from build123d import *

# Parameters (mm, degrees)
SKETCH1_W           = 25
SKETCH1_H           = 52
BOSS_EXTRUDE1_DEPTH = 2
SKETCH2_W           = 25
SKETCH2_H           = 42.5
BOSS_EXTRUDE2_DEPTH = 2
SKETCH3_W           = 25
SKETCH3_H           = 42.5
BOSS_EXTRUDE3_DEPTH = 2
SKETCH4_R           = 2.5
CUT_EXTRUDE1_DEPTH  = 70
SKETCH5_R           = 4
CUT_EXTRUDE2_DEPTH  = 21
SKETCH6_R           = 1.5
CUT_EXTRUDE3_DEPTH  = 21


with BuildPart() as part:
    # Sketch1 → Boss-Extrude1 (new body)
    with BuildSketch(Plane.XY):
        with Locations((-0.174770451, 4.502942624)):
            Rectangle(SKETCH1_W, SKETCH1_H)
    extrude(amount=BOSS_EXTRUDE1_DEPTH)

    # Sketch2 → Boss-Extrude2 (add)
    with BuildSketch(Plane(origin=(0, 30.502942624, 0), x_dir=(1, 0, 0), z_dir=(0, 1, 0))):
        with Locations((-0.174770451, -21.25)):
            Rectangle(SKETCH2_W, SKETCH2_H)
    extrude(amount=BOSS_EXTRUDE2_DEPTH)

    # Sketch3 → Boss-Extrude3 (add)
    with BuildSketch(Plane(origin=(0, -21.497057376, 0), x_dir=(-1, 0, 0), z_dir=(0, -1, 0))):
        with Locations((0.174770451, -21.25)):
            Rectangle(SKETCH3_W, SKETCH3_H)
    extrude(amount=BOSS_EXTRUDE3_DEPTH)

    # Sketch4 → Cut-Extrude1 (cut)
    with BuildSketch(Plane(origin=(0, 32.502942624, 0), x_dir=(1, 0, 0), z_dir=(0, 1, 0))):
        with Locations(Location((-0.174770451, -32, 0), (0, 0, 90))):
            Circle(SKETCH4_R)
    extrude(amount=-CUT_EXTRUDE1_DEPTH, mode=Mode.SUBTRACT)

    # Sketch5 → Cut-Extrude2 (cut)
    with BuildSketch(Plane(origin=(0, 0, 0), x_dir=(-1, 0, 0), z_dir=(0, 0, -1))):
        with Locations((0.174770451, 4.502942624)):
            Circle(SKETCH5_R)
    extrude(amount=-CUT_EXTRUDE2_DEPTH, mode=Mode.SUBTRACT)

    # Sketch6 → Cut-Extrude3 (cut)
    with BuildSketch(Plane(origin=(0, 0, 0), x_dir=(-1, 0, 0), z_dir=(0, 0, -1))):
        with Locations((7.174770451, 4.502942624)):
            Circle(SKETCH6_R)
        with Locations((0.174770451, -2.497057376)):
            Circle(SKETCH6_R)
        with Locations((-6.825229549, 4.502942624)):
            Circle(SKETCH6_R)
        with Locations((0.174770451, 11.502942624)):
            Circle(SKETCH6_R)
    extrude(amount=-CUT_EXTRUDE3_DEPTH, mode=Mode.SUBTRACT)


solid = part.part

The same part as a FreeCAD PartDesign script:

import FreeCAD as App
import Part
import Sketcher
from FreeCAD import Vector
Q = App.Units.Quantity

doc = App.newDocument("Part")
body = doc.addObject("PartDesign::Body", "Body")

sketch1 = body.newObject("Sketcher::SketchObject", "Sketch")
sketch1.AttachmentSupport = (doc.getObject("XY_Plane"), [""])
sketch1.MapMode = "FlatFace"
sketch1.addGeometry([
    Part.LineSegment(Vector(-13, 31, 0), Vector(-13, -21, 0)),
    Part.LineSegment(Vector(-13, -21, 0), Vector(12, -21, 0)),
    Part.LineSegment(Vector(12, -21, 0), Vector(12, 31, 0)),
    Part.LineSegment(Vector(12, 31, 0), Vector(-13, 31, 0)),
], False)
sketch1.addConstraint([
    Sketcher.Constraint("Coincident", 0, 2, 1, 1),
    Sketcher.Constraint("Coincident", 1, 2, 2, 1),
    Sketcher.Constraint("Coincident", 2, 2, 3, 1),
    Sketcher.Constraint("Coincident", 3, 2, 0, 1),
    Sketcher.Constraint("Vertical", 0),
    Sketcher.Constraint("Horizontal", 1),
    Sketcher.Constraint("Vertical", 2),
    Sketcher.Constraint("Horizontal", 3),
    Sketcher.Constraint("DistanceX", 1, 1, 1, 2, Q("25 mm")),
    Sketcher.Constraint("DistanceY", 0, 2, 0, 1, Q("52 mm")),
    Sketcher.Constraint("DistanceX", 0, 2, -1, 1, Q("12.67477 mm")),
    Sketcher.Constraint("DistanceY", 0, 2, -1, 1, Q("21.497057 mm")),
])
pad1 = body.newObject("PartDesign::Pad", "Pad")
pad1.Profile = sketch1
pad1.Length = 2

sketch2 = body.newObject("Sketcher::SketchObject", "Sketch001")
sketch2.AttachmentSupport = (doc.getObject("XZ_Plane"), [""])
sketch2.MapMode = "FlatFace"
sketch2.AttachmentOffset = App.Placement(Vector(0, 0, -30.502943), App.Rotation())
sketch2.addGeometry([
    Part.LineSegment(Vector(-13, 0, 0), Vector(-13, 42, 0)),
    Part.LineSegment(Vector(-13, 42, 0), Vector(12, 42, 0)),
    Part.LineSegment(Vector(12, 42, 0), Vector(12, 0, 0)),
    Part.LineSegment(Vector(12, 0, 0), Vector(-13, 0, 0)),
], False)
sketch2.addConstraint([
    Sketcher.Constraint("Coincident", 0, 2, 1, 1),
    Sketcher.Constraint("Coincident", 1, 2, 2, 1),
    Sketcher.Constraint("Coincident", 2, 2, 3, 1),
    Sketcher.Constraint("Coincident", 3, 2, 0, 1),
    Sketcher.Constraint("Vertical", 0),
    Sketcher.Constraint("Horizontal", 1),
    Sketcher.Constraint("Vertical", 2),
    Sketcher.Constraint("Horizontal", 3),
    Sketcher.Constraint("PointOnObject", 2, 2, -1),
    Sketcher.Constraint("DistanceX", 1, 1, 1, 2, Q("25 mm")),
    Sketcher.Constraint("DistanceY", 0, 1, 0, 2, Q("42.5 mm")),
    Sketcher.Constraint("DistanceX", 0, 2, -1, 1, Q("12.67477 mm")),
])
pad2 = body.newObject("PartDesign::Pad", "Pad001")
pad2.Profile = sketch2
pad2.Length = 2
pad2.Reversed = True

sketch3 = body.newObject("Sketcher::SketchObject", "Sketch002")
sketch3.AttachmentSupport = (doc.getObject("XZ_Plane"), [""])
sketch3.MapMode = "FlatFace"
sketch3.AttachmentOffset = App.Placement(Vector(0, 0, 21.497057), App.Rotation())
sketch3.addGeometry([
    Part.LineSegment(Vector(12, 0, 0), Vector(12, 42, 0)),
    Part.LineSegment(Vector(12, 42, 0), Vector(-13, 42, 0)),
    Part.LineSegment(Vector(-13, 42, 0), Vector(-13, 0, 0)),
    Part.LineSegment(Vector(-13, 0, 0), Vector(12, 0, 0)),
], False)
sketch3.addConstraint([
    Sketcher.Constraint("Coincident", 0, 2, 1, 1),
    Sketcher.Constraint("Coincident", 1, 2, 2, 1),
    Sketcher.Constraint("Coincident", 2, 2, 3, 1),
    Sketcher.Constraint("Coincident", 3, 2, 0, 1),
    Sketcher.Constraint("Vertical", 0),
    Sketcher.Constraint("Horizontal", 1),
    Sketcher.Constraint("Vertical", 2),
    Sketcher.Constraint("Horizontal", 3),
    Sketcher.Constraint("PointOnObject", 2, 2, -1),
    Sketcher.Constraint("DistanceX", 1, 2, 1, 1, Q("25 mm")),
    Sketcher.Constraint("DistanceY", 0, 1, 0, 2, Q("42.5 mm")),
    Sketcher.Constraint("DistanceX", -1, 1, 0, 2, Q("12.32523 mm")),
])
pad3 = body.newObject("PartDesign::Pad", "Pad002")
pad3.Profile = sketch3
pad3.Length = 2

sketch4 = body.newObject("Sketcher::SketchObject", "Sketch003")
sketch4.AttachmentSupport = (doc.getObject("XZ_Plane"), [""])
sketch4.MapMode = "FlatFace"
sketch4.AttachmentOffset = App.Placement(Vector(0, 0, -32.502943), App.Rotation())
sketch4.addGeometry(Part.Circle(Vector(-0.2, 32, 0), Vector(0, 0, 1), 2.5), False)
sketch4.addConstraint([
    Sketcher.Constraint("Diameter", 0, Q("5 mm")),
    Sketcher.Constraint("DistanceY", -1, 1, 0, 3, Q("32 mm")),
    Sketcher.Constraint("DistanceX", 0, 3, -1, 1, Q("0.17477 mm")),
])
pocket1 = body.newObject("PartDesign::Pocket", "Pocket")
pocket1.Profile = sketch4
pocket1.Length = 70
pocket1.Reversed = True

sketch5 = body.newObject("Sketcher::SketchObject", "Sketch004")
sketch5.AttachmentSupport = (doc.getObject("XY_Plane"), [""])
sketch5.MapMode = "FlatFace"
sketch5.addGeometry(Part.Circle(Vector(-0.2, 4.5, 0), Vector(0, 0, 1), 4), False)
sketch5.addConstraint([
    Sketcher.Constraint("Diameter", 0, Q("8 mm")),
    Sketcher.Constraint("DistanceX", 0, 3, -1, 1, Q("0.17477 mm")),
    Sketcher.Constraint("DistanceY", -1, 1, 0, 3, Q("4.502943 mm")),
])
pocket2 = body.newObject("PartDesign::Pocket", "Pocket001")
pocket2.Profile = sketch5
pocket2.Length = 21
pocket2.Reversed = True

sketch6 = body.newObject("Sketcher::SketchObject", "Sketch005")
sketch6.AttachmentSupport = (doc.getObject("XY_Plane"), [""])
sketch6.MapMode = "FlatFace"
sketch6.addGeometry([
    Part.Circle(Vector(-7.2, 4.5, 0), Vector(0, 0, 1), 1.5),
    Part.Circle(Vector(-0.2, -2.5, 0), Vector(0, 0, 1), 1.5),
    Part.Circle(Vector(6.8, 4.5, 0), Vector(0, 0, 1), 1.5),
    Part.Circle(Vector(-0.2, 11.5, 0), Vector(0, 0, 1), 1.5),
], False)
sketch6.addConstraint([
    Sketcher.Constraint("Equal", 0, 1),
    Sketcher.Constraint("Equal", 1, 2),
    Sketcher.Constraint("Equal", 2, 3),
    Sketcher.Constraint("Horizontal", 0, 3, 2, 3),
    Sketcher.Constraint("Vertical", 1, 3, 3, 3),
    Sketcher.Constraint("Diameter", 0, Q("3 mm")),
    Sketcher.Constraint("DistanceX", 0, 3, 1, 3, Q("7 mm")),
    Sketcher.Constraint("DistanceY", 1, 3, 0, 3, Q("7 mm")),
    Sketcher.Constraint("DistanceX", 1, 3, 2, 3, Q("7 mm")),
    Sketcher.Constraint("DistanceY", 0, 3, 3, 3, Q("7 mm")),
    Sketcher.Constraint("DistanceX", 0, 3, -1, 1, Q("7.17477 mm")),
    Sketcher.Constraint("DistanceY", -1, 1, 0, 3, Q("4.502943 mm")),
])
pocket3 = body.newObject("PartDesign::Pocket", "Pocket002")
pocket3.Profile = sketch6
pocket3.Length = 21
pocket3.Reversed = True

doc.recompute()
